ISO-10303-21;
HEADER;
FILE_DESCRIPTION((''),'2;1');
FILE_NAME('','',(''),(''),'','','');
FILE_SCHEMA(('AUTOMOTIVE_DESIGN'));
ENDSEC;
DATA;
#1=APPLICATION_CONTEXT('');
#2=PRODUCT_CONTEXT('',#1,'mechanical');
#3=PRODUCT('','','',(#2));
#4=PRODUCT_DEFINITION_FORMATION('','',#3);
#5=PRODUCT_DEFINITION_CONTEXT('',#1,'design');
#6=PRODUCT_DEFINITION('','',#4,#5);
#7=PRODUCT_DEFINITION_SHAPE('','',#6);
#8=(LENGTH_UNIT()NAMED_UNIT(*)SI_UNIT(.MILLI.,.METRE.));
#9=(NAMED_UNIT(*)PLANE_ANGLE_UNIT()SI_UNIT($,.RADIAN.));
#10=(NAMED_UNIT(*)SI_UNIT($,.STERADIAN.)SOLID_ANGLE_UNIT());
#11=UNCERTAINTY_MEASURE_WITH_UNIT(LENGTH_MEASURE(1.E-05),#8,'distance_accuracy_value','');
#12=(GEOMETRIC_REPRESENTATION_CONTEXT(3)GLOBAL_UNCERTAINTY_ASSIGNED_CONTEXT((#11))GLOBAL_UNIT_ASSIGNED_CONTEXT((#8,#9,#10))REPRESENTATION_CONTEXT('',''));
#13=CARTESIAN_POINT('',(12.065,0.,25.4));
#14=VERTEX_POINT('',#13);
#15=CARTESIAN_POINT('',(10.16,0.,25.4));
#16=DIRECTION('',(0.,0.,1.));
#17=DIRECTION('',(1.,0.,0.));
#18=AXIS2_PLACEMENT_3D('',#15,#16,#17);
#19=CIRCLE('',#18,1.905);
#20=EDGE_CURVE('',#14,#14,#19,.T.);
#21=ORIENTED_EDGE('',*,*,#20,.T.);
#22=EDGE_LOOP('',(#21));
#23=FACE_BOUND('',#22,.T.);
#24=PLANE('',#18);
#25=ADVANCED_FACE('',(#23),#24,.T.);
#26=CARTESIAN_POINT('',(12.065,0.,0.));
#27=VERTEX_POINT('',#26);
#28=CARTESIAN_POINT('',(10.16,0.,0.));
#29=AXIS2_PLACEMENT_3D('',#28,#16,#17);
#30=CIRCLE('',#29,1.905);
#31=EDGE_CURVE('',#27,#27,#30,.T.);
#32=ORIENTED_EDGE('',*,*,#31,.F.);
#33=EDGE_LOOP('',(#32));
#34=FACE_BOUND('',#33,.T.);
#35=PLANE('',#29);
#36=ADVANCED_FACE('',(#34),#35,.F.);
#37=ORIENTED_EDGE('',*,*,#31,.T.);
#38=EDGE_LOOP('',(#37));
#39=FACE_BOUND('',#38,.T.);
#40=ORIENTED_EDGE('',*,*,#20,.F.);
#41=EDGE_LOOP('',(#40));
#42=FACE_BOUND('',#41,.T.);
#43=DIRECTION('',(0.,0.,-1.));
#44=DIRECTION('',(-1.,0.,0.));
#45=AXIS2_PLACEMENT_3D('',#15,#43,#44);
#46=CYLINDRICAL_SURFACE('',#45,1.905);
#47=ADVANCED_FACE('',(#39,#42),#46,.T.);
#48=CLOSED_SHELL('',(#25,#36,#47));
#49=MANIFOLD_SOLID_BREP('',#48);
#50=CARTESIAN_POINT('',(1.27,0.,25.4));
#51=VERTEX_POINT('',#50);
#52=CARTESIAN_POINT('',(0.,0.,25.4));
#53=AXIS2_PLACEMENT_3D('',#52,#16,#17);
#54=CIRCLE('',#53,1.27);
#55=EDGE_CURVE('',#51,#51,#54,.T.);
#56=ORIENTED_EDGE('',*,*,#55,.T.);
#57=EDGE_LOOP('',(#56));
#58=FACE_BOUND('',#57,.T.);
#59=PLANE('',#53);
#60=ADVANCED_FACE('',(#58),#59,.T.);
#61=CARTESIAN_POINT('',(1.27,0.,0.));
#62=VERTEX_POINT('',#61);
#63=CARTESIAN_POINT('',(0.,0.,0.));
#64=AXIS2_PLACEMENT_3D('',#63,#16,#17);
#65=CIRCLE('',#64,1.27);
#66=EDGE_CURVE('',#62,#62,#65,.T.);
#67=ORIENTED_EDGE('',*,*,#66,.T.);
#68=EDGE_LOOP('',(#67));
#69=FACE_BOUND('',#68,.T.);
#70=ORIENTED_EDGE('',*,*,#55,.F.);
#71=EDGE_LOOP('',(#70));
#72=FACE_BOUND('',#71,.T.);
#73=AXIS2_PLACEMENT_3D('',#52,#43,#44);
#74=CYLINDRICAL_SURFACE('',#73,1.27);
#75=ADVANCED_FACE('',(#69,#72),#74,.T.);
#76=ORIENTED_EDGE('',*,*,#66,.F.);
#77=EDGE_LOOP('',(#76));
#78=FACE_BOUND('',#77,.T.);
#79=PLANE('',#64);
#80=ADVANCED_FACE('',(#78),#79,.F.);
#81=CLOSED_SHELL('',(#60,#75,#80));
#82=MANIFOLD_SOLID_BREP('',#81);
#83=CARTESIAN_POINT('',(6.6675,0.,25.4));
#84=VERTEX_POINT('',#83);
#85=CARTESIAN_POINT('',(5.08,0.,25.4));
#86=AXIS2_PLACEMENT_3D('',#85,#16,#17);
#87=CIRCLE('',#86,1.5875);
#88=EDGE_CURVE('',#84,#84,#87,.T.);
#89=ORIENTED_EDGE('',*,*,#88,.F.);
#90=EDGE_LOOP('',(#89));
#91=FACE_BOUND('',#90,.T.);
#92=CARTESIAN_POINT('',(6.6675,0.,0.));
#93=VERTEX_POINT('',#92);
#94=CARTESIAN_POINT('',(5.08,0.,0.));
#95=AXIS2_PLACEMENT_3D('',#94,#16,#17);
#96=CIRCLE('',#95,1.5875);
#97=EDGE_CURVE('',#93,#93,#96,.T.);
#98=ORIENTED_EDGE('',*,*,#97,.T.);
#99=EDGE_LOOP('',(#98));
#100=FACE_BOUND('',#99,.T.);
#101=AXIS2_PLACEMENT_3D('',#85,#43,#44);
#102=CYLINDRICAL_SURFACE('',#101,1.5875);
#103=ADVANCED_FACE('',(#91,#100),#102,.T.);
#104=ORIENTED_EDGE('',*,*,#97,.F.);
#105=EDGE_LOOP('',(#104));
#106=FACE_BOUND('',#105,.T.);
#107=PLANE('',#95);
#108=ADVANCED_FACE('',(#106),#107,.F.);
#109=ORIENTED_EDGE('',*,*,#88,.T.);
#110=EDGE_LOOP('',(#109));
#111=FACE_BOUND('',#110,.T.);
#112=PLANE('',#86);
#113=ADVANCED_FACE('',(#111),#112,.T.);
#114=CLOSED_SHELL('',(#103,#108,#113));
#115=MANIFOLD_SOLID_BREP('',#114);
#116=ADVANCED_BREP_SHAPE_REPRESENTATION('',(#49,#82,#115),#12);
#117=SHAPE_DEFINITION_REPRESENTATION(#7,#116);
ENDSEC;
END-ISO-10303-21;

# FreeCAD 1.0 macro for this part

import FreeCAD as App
import Part
import Sketcher

V = App.Vector
Q = App.Units.Quantity

doc = App.newDocument("Part")
params = doc.addObject("Spreadsheet::Sheet", "Params")
for row, (alias, value) in enumerate([
    ("sketch1_diameter", "0.1 in"),
    ("pad1_length", "1 in"),
    ("sketch2_diameter", "0.125 in"),
    ("pad2_length", "1 in"),
    ("sketch3_diameter", "0.15 in"),
    ("pad3_length", "1 in"),
], start=1):
    params.set(f"A{row}", alias)
    params.set(f"B{row}", "=" + value)
    params.setAlias(f"B{row}", alias)

body = doc.addObject("PartDesign::Body", "Body")

# Sketch on XY plane
sketch1 = doc.addObject("Sketcher::SketchObject", "Sketch")
body.addObject(sketch1)
sketch1.AttachmentSupport = (doc.XY_Plane, [""])
sketch1.MapMode = "FlatFace"
sketch1.addGeometry(Part.Circle(V(0, 0, 0), V(0, 0, 1), 1.3), False)
sketch1.addConstraint([
    Sketcher.Constraint("Coincident", 0, 3, -1, 1),
    Sketcher.Constraint("Diameter", 0, Q("0.1 in")),
])
sketch1.setExpression("Constraints[1]", "Params.sketch1_diameter")
pad1 = doc.addObject("PartDesign::Pad", "Pad")
body.addObject(pad1)
pad1.Profile = sketch1
pad1.setExpression("Length", "Params.pad1_length")
body2 = doc.addObject("PartDesign::Body", "Body001")

# Sketch on XY plane
sketch2 = doc.addObject("Sketcher::SketchObject", "Sketch001")
body2.addObject(sketch2)
sketch2.AttachmentSupport = (doc.getObject("XY_Plane001"), [""])
sketch2.MapMode = "FlatFace"
sketch2.addGeometry(Part.Circle(V(5.1, 0, 0), V(0, 0, 1), 1.6), False)
sketch2.addConstraint([
    Sketcher.Constraint("PointOnObject", 0, 3, -1),
    Sketcher.Constraint("Diameter", 0, Q("0.125 in")),
    Sketcher.Constraint("DistanceX", -1, 1, 0, 3, Q("0.2 in")),
])
sketch2.setExpression("Constraints[1]", "Params.sketch2_diameter")
pad2 = doc.addObject("PartDesign::Pad", "Pad001")
body2.addObject(pad2)
pad2.Profile = sketch2
pad2.setExpression("Length", "Params.pad2_length")
body3 = doc.addObject("PartDesign::Body", "Body002")

# Sketch on XY plane
sketch3 = doc.addObject("Sketcher::SketchObject", "Sketch002")
body3.addObject(sketch3)
sketch3.AttachmentSupport = (doc.getObject("XY_Plane002"), [""])
sketch3.MapMode = "FlatFace"
sketch3.addGeometry(Part.Circle(V(10.2, 0, 0), V(0, 0, 1), 1.9), False)
sketch3.addConstraint([
    Sketcher.Constraint("PointOnObject", 0, 3, -1),
    Sketcher.Constraint("Diameter", 0, Q("0.15 in")),
    Sketcher.Constraint("DistanceX", -1, 1, 0, 3, Q("0.4 in")),
])
sketch3.setExpression("Constraints[1]", "Params.sketch3_diameter")
pad3 = doc.addObject("PartDesign::Pad", "Pad002")
body3.addObject(pad3)
pad3.Profile = sketch3
pad3.setExpression("Length", "Params.pad3_length")

doc.recompute()
